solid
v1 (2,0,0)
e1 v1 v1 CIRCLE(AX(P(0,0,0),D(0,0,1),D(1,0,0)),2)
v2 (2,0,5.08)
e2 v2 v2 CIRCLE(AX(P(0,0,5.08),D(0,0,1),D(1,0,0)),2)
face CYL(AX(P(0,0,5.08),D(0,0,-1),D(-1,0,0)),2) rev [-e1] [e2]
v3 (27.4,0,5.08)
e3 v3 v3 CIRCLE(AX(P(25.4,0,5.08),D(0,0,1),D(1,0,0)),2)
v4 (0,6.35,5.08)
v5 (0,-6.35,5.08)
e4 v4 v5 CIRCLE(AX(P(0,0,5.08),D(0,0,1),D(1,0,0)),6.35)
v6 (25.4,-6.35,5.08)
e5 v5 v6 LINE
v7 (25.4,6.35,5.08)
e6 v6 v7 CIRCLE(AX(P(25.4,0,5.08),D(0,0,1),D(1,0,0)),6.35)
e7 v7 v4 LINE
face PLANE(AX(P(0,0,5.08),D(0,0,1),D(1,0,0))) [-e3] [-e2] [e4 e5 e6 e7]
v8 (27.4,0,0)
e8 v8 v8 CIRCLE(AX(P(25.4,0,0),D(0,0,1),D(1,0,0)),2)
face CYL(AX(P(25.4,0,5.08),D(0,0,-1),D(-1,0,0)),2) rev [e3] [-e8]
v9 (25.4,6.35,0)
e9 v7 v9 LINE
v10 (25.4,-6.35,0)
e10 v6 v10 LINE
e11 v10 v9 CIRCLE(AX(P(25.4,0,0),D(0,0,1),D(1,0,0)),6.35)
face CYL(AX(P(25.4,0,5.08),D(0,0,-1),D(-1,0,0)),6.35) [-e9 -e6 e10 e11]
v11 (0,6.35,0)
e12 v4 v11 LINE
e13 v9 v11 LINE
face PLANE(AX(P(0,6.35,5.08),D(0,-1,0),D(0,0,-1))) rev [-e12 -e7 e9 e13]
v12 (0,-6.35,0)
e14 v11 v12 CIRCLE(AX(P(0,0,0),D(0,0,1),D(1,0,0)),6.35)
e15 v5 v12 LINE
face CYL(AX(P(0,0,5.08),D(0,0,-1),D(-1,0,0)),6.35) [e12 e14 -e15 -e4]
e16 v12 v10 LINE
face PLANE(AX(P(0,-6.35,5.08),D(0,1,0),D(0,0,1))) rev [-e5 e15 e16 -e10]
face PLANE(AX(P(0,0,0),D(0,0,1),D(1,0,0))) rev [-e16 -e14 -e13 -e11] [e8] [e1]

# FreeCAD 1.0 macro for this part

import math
import FreeCAD as App
import Part
import Sketcher
Q = App.Units.Quantity

doc = App.newDocument("Part")
body = doc.addObject("PartDesign::Body", "Body")

# Sketch on XY plane
sketch1 = body.newObject("Sketcher::SketchObject", "Sketch")
sketch1.AttachmentSupport = (doc.getObject("XY_Plane"), [""])
sketch1.MapMode = "FlatFace"
sketch1.addGeometry([
    Part.LineSegment(App.Vector(25.4, 6.3, 0), App.Vector(0, 6.3, 0)),  # 0
    Part.ArcOfCircle(Part.Circle(App.Vector(0, 0, 0), App.Vector(0, 0, 1), 6.3), math.radians(90), math.radians(270)),  # 1
    Part.LineSegment(App.Vector(0, -6.3, 0), App.Vector(25.4, -6.3, 0)),  # 2
    Part.ArcOfCircle(Part.Circle(App.Vector(25.4, 0, 0), App.Vector(0, 0, 1), 6.3), math.radians(-90), math.radians(90)),  # 3
    Part.Circle(App.Vector(25.4, 0, 0), App.Vector(0, 0, 1), 2),  # 4
    Part.Circle(App.Vector(0, 0, 0), App.Vector(0, 0, 1), 2),  # 5
], False)
sketch1.addConstraint([
    Sketcher.Constraint("Tangent", 0, 2, 1, 1),
    Sketcher.Constraint("Tangent", 1, 2, 2, 1),
    Sketcher.Constraint("Tangent", 2, 2, 3, 1),
    Sketcher.Constraint("Tangent", 3, 2, 0, 1),
    Sketcher.Constraint("Horizontal", 0),
    Sketcher.Constraint("Horizontal", 2),
    Sketcher.Constraint("Coincident", 1, 3, -1, 1),
    Sketcher.Constraint("Coincident", 5, 3, -1, 1),
    Sketcher.Constraint("Coincident", 4, 3, 3, 3),
    Sketcher.Constraint("Equal", 4, 5),
    Sketcher.Constraint("DistanceX", 0, 2, 0, 1, Q("1 in")),
    Sketcher.Constraint("Radius", 1, Q("0.25 in")),
    Sketcher.Constraint("Diameter", 4, 4.0),
])
pad1 = body.newObject("PartDesign::Pad", "Pad")
pad1.Profile = sketch1
pad1.Length = Q("0.2 in")

doc.recompute()
